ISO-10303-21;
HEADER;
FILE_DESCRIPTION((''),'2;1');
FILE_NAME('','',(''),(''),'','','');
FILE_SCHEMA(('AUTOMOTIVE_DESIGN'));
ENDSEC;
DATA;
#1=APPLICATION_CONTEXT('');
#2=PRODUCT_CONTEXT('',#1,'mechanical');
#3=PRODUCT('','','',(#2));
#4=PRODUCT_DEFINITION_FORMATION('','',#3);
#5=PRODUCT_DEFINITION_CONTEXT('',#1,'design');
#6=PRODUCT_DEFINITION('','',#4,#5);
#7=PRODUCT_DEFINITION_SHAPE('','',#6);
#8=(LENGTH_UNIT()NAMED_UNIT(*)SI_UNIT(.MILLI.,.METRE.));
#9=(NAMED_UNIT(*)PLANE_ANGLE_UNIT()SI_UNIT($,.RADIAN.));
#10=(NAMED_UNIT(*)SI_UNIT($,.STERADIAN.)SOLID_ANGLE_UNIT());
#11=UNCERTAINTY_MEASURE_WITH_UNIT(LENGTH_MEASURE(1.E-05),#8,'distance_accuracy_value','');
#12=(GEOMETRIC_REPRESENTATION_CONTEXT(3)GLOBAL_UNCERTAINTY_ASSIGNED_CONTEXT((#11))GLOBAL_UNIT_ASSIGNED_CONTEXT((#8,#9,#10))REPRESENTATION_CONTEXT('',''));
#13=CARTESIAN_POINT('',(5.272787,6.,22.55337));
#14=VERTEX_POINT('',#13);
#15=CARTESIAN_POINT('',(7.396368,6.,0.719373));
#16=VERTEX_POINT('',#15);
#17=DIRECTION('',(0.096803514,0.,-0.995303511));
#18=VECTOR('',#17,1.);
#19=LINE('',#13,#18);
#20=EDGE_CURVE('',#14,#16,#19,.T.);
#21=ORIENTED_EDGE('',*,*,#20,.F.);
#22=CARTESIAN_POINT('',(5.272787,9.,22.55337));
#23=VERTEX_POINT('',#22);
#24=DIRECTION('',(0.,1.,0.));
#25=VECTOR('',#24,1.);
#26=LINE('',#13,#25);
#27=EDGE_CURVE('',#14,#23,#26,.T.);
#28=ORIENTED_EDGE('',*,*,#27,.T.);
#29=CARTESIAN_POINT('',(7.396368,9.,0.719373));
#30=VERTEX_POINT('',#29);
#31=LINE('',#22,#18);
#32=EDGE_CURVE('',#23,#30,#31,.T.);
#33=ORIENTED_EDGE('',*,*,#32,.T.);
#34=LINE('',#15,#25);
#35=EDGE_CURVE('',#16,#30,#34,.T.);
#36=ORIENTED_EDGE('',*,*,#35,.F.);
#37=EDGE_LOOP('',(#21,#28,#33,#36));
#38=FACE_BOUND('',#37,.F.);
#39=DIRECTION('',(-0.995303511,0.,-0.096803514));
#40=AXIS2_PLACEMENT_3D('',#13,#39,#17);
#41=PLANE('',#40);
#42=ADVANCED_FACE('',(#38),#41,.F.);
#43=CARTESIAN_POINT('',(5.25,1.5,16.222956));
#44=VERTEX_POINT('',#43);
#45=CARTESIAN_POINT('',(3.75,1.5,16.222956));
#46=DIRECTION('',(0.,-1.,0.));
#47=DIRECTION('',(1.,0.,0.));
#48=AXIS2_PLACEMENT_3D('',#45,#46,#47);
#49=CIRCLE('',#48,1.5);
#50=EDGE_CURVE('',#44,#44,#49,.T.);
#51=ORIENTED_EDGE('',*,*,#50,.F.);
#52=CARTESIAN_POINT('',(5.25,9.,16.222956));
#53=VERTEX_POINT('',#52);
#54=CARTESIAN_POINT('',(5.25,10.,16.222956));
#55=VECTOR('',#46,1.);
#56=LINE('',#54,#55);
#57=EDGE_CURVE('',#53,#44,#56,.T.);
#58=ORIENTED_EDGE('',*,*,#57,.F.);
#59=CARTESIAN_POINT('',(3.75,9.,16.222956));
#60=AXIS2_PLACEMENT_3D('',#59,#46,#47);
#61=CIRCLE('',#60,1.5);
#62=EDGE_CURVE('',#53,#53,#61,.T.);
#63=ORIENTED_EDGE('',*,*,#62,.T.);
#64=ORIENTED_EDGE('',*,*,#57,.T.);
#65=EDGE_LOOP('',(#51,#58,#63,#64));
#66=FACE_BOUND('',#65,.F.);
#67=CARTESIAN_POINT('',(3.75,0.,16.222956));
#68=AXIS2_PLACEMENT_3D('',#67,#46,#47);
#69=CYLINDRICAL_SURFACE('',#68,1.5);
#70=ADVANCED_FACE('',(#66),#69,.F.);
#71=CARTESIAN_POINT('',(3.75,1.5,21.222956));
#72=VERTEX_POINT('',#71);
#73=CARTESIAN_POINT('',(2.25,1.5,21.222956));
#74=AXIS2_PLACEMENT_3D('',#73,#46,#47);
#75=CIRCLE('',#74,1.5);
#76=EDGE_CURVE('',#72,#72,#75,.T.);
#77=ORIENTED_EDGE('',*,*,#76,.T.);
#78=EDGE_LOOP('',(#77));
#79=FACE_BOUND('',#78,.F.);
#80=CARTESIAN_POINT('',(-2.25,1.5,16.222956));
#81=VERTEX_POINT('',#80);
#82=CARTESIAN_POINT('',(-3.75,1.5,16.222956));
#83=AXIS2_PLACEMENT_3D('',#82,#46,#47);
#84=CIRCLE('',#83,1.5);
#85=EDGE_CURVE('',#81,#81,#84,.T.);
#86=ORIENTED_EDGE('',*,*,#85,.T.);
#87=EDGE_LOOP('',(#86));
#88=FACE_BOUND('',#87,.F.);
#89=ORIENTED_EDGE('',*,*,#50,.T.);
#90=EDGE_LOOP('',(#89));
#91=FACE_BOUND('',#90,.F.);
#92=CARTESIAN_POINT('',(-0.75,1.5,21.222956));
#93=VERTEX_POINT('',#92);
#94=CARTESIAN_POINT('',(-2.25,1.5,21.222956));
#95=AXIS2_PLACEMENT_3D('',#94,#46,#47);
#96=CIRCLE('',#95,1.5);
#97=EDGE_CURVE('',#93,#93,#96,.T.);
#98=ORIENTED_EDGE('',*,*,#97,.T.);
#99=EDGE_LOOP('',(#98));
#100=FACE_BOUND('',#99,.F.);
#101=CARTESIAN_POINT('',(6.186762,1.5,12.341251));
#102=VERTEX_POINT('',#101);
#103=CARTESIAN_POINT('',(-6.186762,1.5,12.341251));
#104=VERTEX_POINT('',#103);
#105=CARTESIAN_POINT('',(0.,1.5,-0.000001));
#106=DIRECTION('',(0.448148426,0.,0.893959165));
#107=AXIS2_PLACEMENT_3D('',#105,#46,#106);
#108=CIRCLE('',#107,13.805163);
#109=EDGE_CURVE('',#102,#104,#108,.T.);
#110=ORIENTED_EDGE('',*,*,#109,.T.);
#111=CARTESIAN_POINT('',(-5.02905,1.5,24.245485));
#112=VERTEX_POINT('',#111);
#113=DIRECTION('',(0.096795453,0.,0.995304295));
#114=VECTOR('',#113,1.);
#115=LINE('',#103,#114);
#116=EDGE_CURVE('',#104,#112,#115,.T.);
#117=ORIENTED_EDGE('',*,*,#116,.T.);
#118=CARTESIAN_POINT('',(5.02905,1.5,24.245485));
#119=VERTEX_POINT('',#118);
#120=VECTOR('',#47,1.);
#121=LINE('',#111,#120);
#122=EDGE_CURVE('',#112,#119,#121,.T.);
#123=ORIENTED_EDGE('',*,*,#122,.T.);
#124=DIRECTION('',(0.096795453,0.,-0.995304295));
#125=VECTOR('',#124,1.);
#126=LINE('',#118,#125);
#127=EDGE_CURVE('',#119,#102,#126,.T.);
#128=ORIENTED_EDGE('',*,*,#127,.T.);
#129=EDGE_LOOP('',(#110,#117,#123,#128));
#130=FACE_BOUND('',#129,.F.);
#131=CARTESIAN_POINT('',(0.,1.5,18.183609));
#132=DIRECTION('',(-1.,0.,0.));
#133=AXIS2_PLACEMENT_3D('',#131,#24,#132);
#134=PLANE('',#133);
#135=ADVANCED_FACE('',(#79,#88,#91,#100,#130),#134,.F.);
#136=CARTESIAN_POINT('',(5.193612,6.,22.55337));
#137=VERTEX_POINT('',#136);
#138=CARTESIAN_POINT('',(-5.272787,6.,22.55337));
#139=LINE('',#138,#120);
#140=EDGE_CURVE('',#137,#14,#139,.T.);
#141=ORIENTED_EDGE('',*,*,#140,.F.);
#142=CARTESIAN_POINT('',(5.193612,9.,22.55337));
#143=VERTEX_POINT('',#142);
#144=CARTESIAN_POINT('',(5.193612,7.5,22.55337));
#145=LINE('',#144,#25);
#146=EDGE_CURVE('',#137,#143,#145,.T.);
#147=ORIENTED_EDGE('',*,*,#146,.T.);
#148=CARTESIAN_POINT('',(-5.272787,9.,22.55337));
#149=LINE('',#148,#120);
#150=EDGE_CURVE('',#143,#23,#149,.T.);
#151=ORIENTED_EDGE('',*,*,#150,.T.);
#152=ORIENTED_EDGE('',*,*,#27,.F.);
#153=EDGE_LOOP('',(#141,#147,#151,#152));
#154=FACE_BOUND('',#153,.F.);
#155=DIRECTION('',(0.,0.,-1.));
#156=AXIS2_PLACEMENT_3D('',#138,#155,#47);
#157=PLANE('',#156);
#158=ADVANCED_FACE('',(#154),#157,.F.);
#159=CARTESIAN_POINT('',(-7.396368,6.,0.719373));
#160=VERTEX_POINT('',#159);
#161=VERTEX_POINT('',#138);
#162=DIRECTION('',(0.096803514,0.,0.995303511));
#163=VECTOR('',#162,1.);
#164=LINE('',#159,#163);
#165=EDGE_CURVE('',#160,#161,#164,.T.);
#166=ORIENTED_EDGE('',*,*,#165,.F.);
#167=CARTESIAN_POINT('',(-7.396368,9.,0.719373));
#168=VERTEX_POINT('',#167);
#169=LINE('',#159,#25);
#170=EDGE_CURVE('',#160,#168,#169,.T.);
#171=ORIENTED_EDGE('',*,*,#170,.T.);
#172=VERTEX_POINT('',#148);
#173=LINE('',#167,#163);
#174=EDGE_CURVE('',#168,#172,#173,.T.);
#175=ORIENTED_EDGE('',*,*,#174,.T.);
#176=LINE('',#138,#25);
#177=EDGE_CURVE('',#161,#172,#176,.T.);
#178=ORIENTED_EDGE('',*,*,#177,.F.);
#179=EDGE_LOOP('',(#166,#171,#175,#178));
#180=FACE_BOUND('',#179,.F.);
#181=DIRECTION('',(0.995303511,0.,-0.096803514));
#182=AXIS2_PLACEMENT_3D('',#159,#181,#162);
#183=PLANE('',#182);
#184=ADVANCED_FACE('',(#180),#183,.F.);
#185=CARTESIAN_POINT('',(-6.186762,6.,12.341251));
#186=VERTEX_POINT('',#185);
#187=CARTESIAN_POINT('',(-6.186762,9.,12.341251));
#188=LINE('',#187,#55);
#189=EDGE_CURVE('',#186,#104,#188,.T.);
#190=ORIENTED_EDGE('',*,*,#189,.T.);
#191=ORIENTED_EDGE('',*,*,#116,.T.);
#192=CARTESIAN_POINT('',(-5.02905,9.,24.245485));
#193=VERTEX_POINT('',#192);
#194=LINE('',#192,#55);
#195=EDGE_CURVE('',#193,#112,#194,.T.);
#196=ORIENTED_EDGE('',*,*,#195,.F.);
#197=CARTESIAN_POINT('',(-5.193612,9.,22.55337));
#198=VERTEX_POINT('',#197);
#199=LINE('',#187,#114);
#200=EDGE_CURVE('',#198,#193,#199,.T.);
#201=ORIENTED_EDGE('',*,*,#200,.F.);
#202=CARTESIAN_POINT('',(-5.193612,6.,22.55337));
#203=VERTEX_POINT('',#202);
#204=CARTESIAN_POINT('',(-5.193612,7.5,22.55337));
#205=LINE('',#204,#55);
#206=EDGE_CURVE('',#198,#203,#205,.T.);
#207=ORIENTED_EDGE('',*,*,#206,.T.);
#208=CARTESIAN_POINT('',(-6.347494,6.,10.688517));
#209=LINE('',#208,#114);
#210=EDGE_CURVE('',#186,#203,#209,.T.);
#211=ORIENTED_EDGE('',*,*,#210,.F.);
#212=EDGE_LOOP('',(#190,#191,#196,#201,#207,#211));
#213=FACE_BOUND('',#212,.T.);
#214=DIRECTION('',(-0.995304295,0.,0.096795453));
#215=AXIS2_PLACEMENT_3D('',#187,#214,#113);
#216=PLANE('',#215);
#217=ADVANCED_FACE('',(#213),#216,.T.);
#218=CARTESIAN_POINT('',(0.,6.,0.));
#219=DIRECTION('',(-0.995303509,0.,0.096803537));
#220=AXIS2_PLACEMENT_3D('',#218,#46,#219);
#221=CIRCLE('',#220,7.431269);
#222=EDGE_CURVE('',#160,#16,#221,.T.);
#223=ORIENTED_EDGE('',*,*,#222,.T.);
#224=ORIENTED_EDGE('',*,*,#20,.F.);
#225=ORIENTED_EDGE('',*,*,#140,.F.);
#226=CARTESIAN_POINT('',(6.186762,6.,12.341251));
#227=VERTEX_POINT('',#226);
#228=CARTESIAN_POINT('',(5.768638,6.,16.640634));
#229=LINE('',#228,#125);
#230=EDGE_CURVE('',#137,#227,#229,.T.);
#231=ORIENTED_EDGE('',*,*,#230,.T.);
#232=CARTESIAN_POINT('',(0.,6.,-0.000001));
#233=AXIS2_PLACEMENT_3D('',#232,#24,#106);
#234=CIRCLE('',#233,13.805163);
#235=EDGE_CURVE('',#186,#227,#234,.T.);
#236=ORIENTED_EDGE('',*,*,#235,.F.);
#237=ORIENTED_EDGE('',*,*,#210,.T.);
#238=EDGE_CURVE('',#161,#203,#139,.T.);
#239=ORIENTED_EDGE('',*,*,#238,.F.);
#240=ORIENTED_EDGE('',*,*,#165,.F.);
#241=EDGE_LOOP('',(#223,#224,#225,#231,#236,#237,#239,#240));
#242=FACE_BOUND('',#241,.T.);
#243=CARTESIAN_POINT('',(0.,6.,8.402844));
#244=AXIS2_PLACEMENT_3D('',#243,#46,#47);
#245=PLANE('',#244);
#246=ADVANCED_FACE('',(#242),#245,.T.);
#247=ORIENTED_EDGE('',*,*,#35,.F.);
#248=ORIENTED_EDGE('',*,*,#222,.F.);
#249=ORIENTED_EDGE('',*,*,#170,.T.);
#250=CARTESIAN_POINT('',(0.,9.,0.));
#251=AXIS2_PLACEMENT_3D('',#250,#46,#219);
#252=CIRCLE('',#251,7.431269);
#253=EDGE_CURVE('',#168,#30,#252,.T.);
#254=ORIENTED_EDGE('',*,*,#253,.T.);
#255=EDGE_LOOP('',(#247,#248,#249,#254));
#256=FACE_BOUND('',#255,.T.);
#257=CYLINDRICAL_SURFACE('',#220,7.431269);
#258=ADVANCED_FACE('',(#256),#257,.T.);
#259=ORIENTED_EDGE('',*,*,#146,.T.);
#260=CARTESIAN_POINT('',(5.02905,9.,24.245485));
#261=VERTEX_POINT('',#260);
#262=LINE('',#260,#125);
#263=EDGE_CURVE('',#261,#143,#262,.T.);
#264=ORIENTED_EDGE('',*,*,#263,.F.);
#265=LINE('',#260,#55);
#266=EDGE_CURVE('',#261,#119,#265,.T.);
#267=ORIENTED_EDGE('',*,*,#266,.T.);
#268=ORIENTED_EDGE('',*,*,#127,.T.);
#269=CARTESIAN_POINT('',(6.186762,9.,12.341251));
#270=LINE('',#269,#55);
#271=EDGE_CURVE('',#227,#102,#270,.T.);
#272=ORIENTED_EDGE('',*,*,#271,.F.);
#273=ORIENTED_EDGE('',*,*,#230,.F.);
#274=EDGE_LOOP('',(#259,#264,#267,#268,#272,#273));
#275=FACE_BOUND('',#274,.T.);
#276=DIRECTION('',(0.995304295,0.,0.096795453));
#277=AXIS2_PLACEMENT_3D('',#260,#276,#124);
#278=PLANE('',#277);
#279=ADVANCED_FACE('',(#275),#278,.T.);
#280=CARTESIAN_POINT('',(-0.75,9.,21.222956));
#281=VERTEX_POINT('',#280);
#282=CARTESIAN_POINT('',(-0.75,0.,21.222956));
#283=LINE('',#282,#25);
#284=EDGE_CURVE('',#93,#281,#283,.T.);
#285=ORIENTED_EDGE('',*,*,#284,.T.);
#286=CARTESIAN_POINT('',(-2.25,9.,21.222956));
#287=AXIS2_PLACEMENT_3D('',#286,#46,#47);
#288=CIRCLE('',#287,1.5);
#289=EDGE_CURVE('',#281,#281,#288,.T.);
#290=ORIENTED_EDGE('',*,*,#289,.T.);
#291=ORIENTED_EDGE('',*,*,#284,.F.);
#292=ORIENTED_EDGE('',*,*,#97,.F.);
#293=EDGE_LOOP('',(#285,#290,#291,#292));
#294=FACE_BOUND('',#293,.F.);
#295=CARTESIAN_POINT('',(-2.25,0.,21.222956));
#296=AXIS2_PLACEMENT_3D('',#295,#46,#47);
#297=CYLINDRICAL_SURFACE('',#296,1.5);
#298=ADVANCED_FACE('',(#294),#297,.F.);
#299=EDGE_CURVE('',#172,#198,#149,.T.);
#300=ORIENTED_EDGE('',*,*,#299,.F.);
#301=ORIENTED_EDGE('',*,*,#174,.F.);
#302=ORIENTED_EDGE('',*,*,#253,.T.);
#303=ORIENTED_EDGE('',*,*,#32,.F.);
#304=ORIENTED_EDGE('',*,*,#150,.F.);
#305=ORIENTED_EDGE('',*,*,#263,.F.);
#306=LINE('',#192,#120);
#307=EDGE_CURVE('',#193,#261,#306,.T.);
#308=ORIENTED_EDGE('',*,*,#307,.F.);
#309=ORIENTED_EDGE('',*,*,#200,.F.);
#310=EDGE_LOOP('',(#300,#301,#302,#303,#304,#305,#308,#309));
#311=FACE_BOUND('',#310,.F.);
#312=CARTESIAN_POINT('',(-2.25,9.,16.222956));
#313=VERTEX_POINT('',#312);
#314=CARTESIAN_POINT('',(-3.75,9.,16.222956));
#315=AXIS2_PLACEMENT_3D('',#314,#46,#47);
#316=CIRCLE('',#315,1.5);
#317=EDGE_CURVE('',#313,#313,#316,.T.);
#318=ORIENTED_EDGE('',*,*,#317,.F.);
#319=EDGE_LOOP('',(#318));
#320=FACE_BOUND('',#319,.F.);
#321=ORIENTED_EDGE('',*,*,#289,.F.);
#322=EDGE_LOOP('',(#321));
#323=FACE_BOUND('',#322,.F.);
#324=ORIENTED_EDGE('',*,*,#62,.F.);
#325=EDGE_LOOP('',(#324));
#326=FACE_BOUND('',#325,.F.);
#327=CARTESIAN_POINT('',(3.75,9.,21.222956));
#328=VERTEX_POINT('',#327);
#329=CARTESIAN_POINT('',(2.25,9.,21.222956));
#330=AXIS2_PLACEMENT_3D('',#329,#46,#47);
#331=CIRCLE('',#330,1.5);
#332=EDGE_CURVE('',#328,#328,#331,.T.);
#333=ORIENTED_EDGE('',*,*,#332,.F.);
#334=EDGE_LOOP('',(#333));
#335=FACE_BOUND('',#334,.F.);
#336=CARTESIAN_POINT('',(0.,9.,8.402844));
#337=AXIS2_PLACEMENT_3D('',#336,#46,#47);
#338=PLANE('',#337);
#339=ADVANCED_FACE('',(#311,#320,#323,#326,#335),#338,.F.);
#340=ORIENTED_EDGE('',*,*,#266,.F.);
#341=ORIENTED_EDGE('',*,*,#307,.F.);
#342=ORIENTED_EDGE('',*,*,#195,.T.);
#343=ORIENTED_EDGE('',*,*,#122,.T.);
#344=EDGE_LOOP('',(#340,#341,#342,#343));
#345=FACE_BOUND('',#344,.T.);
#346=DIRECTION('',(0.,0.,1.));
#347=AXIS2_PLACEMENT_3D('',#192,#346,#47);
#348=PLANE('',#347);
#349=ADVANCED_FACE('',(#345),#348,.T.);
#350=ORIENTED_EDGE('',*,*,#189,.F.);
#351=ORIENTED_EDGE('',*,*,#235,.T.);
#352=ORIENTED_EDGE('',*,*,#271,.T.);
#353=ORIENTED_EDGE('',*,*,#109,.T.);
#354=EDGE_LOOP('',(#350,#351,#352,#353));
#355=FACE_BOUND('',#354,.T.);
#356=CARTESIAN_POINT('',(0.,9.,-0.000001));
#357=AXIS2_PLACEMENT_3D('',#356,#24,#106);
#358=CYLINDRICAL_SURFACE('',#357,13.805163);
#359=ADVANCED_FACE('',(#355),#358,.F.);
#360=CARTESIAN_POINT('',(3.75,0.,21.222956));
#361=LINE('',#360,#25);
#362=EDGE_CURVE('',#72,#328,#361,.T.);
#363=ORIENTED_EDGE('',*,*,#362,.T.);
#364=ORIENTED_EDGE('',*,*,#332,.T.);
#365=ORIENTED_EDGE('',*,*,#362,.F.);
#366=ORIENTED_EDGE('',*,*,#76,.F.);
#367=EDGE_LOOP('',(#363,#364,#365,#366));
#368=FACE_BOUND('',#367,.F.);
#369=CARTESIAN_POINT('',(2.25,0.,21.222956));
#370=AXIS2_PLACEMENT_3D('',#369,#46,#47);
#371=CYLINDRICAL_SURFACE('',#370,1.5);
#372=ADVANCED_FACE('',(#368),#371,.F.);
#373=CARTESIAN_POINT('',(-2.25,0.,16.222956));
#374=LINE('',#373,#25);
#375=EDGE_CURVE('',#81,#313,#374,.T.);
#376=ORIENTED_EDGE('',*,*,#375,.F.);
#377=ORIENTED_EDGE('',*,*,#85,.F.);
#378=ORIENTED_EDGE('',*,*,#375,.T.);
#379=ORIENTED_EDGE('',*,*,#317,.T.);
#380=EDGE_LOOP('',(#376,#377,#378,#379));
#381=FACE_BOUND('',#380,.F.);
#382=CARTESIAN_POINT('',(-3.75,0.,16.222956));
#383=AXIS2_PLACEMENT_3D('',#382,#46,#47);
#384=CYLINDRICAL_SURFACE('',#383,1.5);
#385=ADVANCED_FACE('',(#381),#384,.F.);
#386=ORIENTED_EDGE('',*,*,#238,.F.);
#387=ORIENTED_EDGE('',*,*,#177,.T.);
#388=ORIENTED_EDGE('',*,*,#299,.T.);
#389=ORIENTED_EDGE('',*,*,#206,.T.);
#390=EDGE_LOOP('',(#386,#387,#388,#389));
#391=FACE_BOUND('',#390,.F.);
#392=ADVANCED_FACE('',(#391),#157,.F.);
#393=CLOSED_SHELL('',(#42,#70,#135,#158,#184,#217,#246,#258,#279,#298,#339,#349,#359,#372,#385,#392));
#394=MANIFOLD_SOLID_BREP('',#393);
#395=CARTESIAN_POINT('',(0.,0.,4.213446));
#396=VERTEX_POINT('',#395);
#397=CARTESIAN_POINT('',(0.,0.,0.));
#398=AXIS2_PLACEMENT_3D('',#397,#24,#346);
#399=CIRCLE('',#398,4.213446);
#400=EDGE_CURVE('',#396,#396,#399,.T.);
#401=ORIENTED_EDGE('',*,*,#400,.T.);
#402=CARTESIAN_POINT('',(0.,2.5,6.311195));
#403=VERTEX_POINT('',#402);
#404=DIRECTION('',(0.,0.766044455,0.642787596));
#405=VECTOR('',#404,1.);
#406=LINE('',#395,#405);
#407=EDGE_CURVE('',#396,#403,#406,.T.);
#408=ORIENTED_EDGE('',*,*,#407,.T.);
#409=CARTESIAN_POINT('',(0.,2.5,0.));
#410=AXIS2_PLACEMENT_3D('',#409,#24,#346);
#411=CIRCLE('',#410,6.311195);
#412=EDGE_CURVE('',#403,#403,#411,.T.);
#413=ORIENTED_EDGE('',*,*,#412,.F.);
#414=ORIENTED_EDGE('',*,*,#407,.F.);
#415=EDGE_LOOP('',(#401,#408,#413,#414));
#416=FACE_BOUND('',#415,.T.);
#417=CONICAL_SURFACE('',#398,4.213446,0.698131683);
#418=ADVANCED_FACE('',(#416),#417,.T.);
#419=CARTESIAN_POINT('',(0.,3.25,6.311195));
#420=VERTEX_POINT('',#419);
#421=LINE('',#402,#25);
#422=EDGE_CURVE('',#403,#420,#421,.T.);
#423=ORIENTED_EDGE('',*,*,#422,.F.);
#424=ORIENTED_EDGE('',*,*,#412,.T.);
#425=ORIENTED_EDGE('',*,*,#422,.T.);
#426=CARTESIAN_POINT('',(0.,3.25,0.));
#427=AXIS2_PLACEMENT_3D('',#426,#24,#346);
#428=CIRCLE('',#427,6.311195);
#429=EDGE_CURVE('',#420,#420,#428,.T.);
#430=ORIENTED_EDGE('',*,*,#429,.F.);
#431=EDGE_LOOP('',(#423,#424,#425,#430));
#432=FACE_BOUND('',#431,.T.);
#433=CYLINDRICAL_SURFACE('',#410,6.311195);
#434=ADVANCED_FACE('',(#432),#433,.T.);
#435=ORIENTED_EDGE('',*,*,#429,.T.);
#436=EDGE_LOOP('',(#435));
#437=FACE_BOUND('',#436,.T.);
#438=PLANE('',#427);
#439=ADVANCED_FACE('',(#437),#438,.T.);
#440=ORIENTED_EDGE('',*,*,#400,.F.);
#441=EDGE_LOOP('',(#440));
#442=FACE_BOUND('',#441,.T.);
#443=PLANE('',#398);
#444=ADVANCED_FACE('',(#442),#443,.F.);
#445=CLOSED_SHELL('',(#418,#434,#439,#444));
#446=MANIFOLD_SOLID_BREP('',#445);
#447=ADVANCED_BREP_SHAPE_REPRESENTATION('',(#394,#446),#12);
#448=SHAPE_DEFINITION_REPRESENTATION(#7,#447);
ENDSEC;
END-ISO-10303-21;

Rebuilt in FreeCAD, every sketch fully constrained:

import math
import FreeCAD as App
import Part
import Sketcher
from FreeCAD import Vector
Q = App.Units.Quantity


def add_polygon(sketch, points):
    """Adds a closed chain of lines whose ends are joined by coincident constraints."""
    first, n = sketch.GeometryCount, len(points)
    for a, b in zip(points, points[1:] + points[:1]):
        sketch.addGeometry(Part.LineSegment(App.Vector(*a, 0), App.Vector(*b, 0)), False)
    for i in range(n):
        sketch.addConstraint(Sketcher.Constraint("Coincident", first + i, 2, first + (i + 1) % n, 1))

doc = App.newDocument("Part")
body = doc.addObject("PartDesign::Body", "Body")
body.AllowCompound = True

# Sketch on XZ plane
sketch1 = body.newObject("Sketcher::SketchObject", "Sketch")
sketch1.AttachmentSupport = (doc.getObject("XZ_Plane"), [""])
sketch1.MapMode = "FlatFace"
sketch1.addGeometry([
    Part.Circle(Vector(-2.2, 21.2, 0), Vector(0, 0, 1), 1.5),
    Part.Circle(Vector(-3.8, 16.2, 0), Vector(0, 0, 1), 1.5),
    Part.Circle(Vector(2.2, 21.2, 0), Vector(0, 0, 1), 1.5),
    Part.Circle(Vector(3.8, 16.2, 0), Vector(0, 0, 1), 1.5),
], False)
sketch1.addConstraint([
    Sketcher.Constraint("Equal", 0, 1),
    Sketcher.Constraint("Equal", 1, 2),
    Sketcher.Constraint("Equal", 2, 3),
    Sketcher.Constraint("Symmetric", 0, 3, 2, 3, -2),
    Sketcher.Constraint("Symmetric", 1, 3, 3, 3, -2),
    Sketcher.Constraint("Diameter", 0, Q("3 mm")),
    Sketcher.Constraint("DistanceY", 1, 3, 0, 3, Q("5 mm")),
    Sketcher.Constraint("DistanceX", 1, 3, 2, 3, Q("6 mm")),
    Sketcher.Constraint("DistanceX", 1, 3, 0, 3, Q("1.5 mm")),
    Sketcher.Constraint("DistanceY", -1, 1, 0, 3, Q("21.222956 mm")),
])
pad1 = body.newObject("PartDesign::Pad", "Pad")
pad1.Profile = sketch1
pad1.Length = 20
pad1.Midplane = True
body2 = doc.addObject("PartDesign::Body", "Body001")

# Sketch on XZ plane
sketch2 = body2.newObject("Sketcher::SketchObject", "Sketch001")
sketch2.AttachmentSupport = (doc.getObject("XZ_Plane001"), [""])
sketch2.MapMode = "FlatFace"
sketch2.AttachmentOffset = App.Placement(Vector(0, 0, -9), App.Rotation())
sketch2.addGeometry([
    Part.ArcOfCircle(Part.Circle(Vector(0, 0, 0), Vector(0, 0, 1), 14), math.radians(63), math.radians(117)),
    Part.LineSegment(Vector(6, 12, 0), Vector(5, 24, 0)),
    Part.LineSegment(Vector(5, 24, 0), Vector(-5, 24, 0)),
    Part.LineSegment(Vector(-5, 24, 0), Vector(-6, 12, 0)),
], False)
sketch2.addConstraint([
    Sketcher.Constraint("Coincident", 0, 1, 1, 1),
    Sketcher.Constraint("Coincident", 1, 2, 2, 1),
    Sketcher.Constraint("Coincident", 2, 2, 3, 1),
    Sketcher.Constraint("Coincident", 3, 2, 0, 2),
    Sketcher.Constraint("Horizontal", 2),
    Sketcher.Constraint("Coincident", 0, 3, -1, 1),
    Sketcher.Constraint("Horizontal", 0, 1, 3, 2),
    Sketcher.Constraint("Equal", 1, 3),
    Sketcher.Constraint("DistanceX", 2, 2, 2, 1, Q("10.0581 mm")),
    Sketcher.Constraint("Radius", 0, Q("13.805163 mm")),
    Sketcher.Constraint("DistanceY", -1, 1, 0, 1, Q("12.341251 mm")),
    Sketcher.Constraint("Distance", 1, Q("11.960396 mm")),
])
pad2 = body2.newObject("PartDesign::Pad", "Pad001")
pad2.Profile = sketch2
pad2.Length = 7.5
body3 = doc.addObject("PartDesign::Body", "Body002")

# Sketch on XZ plane
sketch3 = body3.newObject("Sketcher::SketchObject", "Sketch002")
sketch3.AttachmentSupport = (doc.getObject("XZ_Plane002"), [""])
sketch3.MapMode = "FlatFace"
sketch3.AttachmentOffset = App.Placement(Vector(0, 0, -6), App.Rotation())
sketch3.addGeometry([
    Part.ArcOfCircle(Part.Circle(Vector(0, 0, 0), Vector(0, 0, 1), 7), math.radians(174), math.radians(366)),
    Part.LineSegment(Vector(7, 1, 0), Vector(5, 23, 0)),
    Part.LineSegment(Vector(5, 23, 0), Vector(-5, 23, 0)),
    Part.LineSegment(Vector(-5, 23, 0), Vector(-7, 1, 0)),
], False)
sketch3.addConstraint([
    Sketcher.Constraint("Tangent", 0, 2, 1, 1),
    Sketcher.Constraint("Coincident", 1, 2, 2, 1),
    Sketcher.Constraint("Coincident", 2, 2, 3, 1),
    Sketcher.Constraint("Tangent", 3, 2, 0, 1),
    Sketcher.Constraint("Horizontal", 2),
    Sketcher.Constraint("Coincident", 0, 3, -1, 1),
    Sketcher.Constraint("Horizontal", 0, 2, 3, 2),
    Sketcher.Constraint("Radius", 0, Q("7.431269 mm")),
    Sketcher.Constraint("DistanceX", 2, 2, 2, 1, Q("10.545574 mm")),
    Sketcher.Constraint("DistanceY", -1, 1, 1, 2, Q("22.55337 mm")),
])
pad3 = body3.newObject("PartDesign::Pad", "Pad002")
pad3.Profile = sketch3
pad3.Length = 3
pad3.Reversed = True
body4 = doc.addObject("PartDesign::Body", "Body003")
body4.AllowCompound = True

# Sketch on YZ plane
sketch4 = body4.newObject("Sketcher::SketchObject", "Sketch003")
sketch4.AttachmentSupport = (doc.getObject("YZ_Plane003"), [""])
sketch4.MapMode = "FlatFace"
add_polygon(sketch4, [(2.5, 6.3), (0, 4.2), (0, 0), (3.2, 0), (3.2, 6.3)])  # lines 0-4
sketch4.addConstraint([
    Sketcher.Constraint("Vertical", 1),
    Sketcher.Constraint("Horizontal", 2),
    Sketcher.Constraint("Vertical", 3),
    Sketcher.Constraint("Horizontal", 4),
    Sketcher.Constraint("Coincident", 1, 2, -1, 1),
    Sketcher.Constraint("Angle", 0, Q("-140.000001 deg")),
    Sketcher.Constraint("DistanceX", 2, 1, 2, 2, Q("3.25 mm")),
    Sketcher.Constraint("DistanceX", 4, 2, 4, 1, Q("0.75 mm")),
    Sketcher.Constraint("DistanceY", 1, 2, 1, 1, Q("4.213446 mm")),
])
revolution = body4.newObject("PartDesign::Revolution", "Revolution")
revolution.Profile = sketch4
revolution.ReferenceAxis = (sketch4, ["H_Axis"])
revolution.Angle = 360
doc.recompute()

boolean = body4.newObject("PartDesign::Boolean", "Boolean")
boolean.Type = "Fuse"
boolean.addObjects([body2])
doc.recompute()

boolean2 = body4.newObject("PartDesign::Boolean", "Boolean001")
boolean2.Type = "Fuse"
boolean2.addObjects([body3])
doc.recompute()

boolean3 = body4.newObject("PartDesign::Boolean", "Boolean002")
boolean3.Type = "Cut"
boolean3.addObjects([body])

doc.recompute()
